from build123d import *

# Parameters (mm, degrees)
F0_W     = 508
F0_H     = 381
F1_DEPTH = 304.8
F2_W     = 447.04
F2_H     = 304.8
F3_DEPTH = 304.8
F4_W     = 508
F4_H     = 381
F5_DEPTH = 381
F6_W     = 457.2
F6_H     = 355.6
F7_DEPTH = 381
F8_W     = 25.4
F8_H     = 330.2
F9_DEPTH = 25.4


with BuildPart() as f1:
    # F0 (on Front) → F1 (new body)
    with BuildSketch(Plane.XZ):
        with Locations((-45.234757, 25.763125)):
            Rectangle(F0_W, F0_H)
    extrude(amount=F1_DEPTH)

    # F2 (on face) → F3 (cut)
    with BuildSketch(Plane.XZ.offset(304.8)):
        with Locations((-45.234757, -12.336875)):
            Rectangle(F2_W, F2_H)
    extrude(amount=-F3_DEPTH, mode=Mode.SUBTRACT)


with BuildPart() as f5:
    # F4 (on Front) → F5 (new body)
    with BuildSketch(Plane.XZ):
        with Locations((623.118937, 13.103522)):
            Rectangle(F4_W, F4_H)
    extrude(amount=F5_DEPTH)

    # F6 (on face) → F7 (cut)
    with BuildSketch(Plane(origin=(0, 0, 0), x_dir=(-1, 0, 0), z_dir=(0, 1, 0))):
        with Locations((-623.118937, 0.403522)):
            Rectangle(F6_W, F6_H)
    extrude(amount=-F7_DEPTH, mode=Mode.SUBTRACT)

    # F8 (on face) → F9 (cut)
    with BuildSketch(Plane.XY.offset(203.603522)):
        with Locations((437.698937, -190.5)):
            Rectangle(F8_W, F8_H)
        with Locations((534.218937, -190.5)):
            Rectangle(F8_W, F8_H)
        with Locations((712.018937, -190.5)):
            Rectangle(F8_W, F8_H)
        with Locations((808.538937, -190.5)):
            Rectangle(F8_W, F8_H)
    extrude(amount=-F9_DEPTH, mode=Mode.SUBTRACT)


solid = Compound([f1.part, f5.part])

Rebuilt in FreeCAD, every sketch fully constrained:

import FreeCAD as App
import Part
import Sketcher
from FreeCAD import Vector
Q = App.Units.Quantity


def add_polygon(sketch, points):
    """Adds a closed chain of lines whose ends are joined by coincident constraints."""
    first, n = sketch.GeometryCount, len(points)
    for a, b in zip(points, points[1:] + points[:1]):
        sketch.addGeometry(Part.LineSegment(App.Vector(*a, 0), App.Vector(*b, 0)), False)
    for i in range(n):
        sketch.addConstraint(Sketcher.Constraint("Coincident", first + i, 2, first + (i + 1) % n, 1))

doc = App.newDocument("Part")
body = doc.addObject("PartDesign::Body", "Body")

# Sketch on XZ plane
sketch1 = body.newObject("Sketcher::SketchObject", "Sketch")
sketch1.AttachmentSupport = (doc.getObject("XZ_Plane"), [""])
sketch1.MapMode = "FlatFace"
add_polygon(sketch1, [(-299, 216), (-299, -165), (209, -165), (209, 216)])  # lines 0-3
sketch1.addConstraint(Sketcher.Constraint("Vertical", 0))
sketch1.addConstraint(Sketcher.Constraint("Horizontal", 1))
sketch1.addConstraint(Sketcher.Constraint("Vertical", 2))
sketch1.addConstraint(Sketcher.Constraint("Horizontal", 3))
sketch1.addConstraint(Sketcher.Constraint("DistanceX", 1, 1, 1, 2, Q("20 in")))
sketch1.addConstraint(Sketcher.Constraint("DistanceY", 0, 2, 0, 1, Q("15 in")))
sketch1.addConstraint(Sketcher.Constraint("DistanceX", 0, 2, -1, 1, 299.234757))
sketch1.addConstraint(Sketcher.Constraint("DistanceY", 0, 2, -1, 1, 164.736875))
pad1 = body.newObject("PartDesign::Pad", "Pad")
pad1.Profile = sketch1
pad1.Length = Q("12 in")

# Sketch on XZ plane
sketch2 = body.newObject("Sketcher::SketchObject", "Sketch001")
sketch2.AttachmentSupport = (doc.getObject("XZ_Plane"), [""])
sketch2.MapMode = "FlatFace"
sketch2.AttachmentOffset = App.Placement(Vector(0, 0, 12 * 25.4), App.Rotation())
add_polygon(sketch2, [(-269, 140), (-269, -165), (178, -165), (178, 140)])  # lines 0-3
sketch2.addConstraint(Sketcher.Constraint("Vertical", 0))
sketch2.addConstraint(Sketcher.Constraint("Horizontal", 1))
sketch2.addConstraint(Sketcher.Constraint("Vertical", 2))
sketch2.addConstraint(Sketcher.Constraint("Horizontal", 3))
sketch2.addConstraint(Sketcher.Constraint("DistanceY", 0, 2, 0, 1, Q("12 in")))
sketch2.addConstraint(Sketcher.Constraint("DistanceX", 1, 1, 1, 2, Q("17.6 in")))
sketch2.addConstraint(Sketcher.Constraint("DistanceX", 0, 2, -1, 1, 268.754757))
sketch2.addConstraint(Sketcher.Constraint("DistanceY", 0, 2, -1, 1, 164.736875))
pocket1 = body.newObject("PartDesign::Pocket", "Pocket")
pocket1.Profile = sketch2
pocket1.Length = Q("12 in")
body2 = doc.addObject("PartDesign::Body", "Body001")

# Sketch on XZ plane
sketch3 = body2.newObject("Sketcher::SketchObject", "Sketch002")
sketch3.AttachmentSupport = (doc.getObject("XZ_Plane001"), [""])
sketch3.MapMode = "FlatFace"
add_polygon(sketch3, [(369, 204), (369, -177), (877, -177), (877, 204)])  # lines 0-3
sketch3.addConstraint(Sketcher.Constraint("Vertical", 0))
sketch3.addConstraint(Sketcher.Constraint("Horizontal", 1))
sketch3.addConstraint(Sketcher.Constraint("Vertical", 2))
sketch3.addConstraint(Sketcher.Constraint("Horizontal", 3))
sketch3.addConstraint(Sketcher.Constraint("DistanceX", 1, 1, 1, 2, Q("20 in")))
sketch3.addConstraint(Sketcher.Constraint("DistanceY", 0, 2, 0, 1, Q("15 in")))
sketch3.addConstraint(Sketcher.Constraint("DistanceY", 0, 2, -1, 1, 177.396478))
sketch3.addConstraint(Sketcher.Constraint("DistanceX", -1, 1, 0, 2, 369.118937))
pad2 = body2.newObject("PartDesign::Pad", "Pad001")
pad2.Profile = sketch3
pad2.Length = Q("15 in")

# Sketch on XZ plane
sketch4 = body2.newObject("Sketcher::SketchObject", "Sketch003")
sketch4.AttachmentSupport = (doc.getObject("XZ_Plane001"), [""])
sketch4.MapMode = "FlatFace"
add_polygon(sketch4, [(852, 178), (852, -177), (395, -177), (395, 178)])  # lines 0-3
sketch4.addConstraint(Sketcher.Constraint("Vertical", 0))
sketch4.addConstraint(Sketcher.Constraint("Horizontal", 1))
sketch4.addConstraint(Sketcher.Constraint("Vertical", 2))
sketch4.addConstraint(Sketcher.Constraint("Horizontal", 3))
sketch4.addConstraint(Sketcher.Constraint("DistanceX", 1, 2, 1, 1, Q("18 in")))
sketch4.addConstraint(Sketcher.Constraint("DistanceY", 0, 2, 0, 1, Q("14 in")))
sketch4.addConstraint(Sketcher.Constraint("DistanceY", 0, 2, -1, 1, 177.396478))
sketch4.addConstraint(Sketcher.Constraint("DistanceX", -1, 1, 0, 2, 851.718937))
pocket2 = body2.newObject("PartDesign::Pocket", "Pocket001")
pocket2.Profile = sketch4
pocket2.Length = Q("15 in")
pocket2.Reversed = True

# Sketch on XY plane
sketch5 = body2.newObject("Sketcher::SketchObject", "Sketch004")
sketch5.AttachmentSupport = (doc.getObject("XY_Plane001"), [""])
sketch5.MapMode = "FlatFace"
sketch5.AttachmentOffset = App.Placement(Vector(0, 0, 203.603522), App.Rotation())
add_polygon(sketch5, [(425, -25), (425, -356), (450, -356), (450, -25)])  # lines 0-3
add_polygon(sketch5, [(522, -25), (522, -356), (547, -356), (547, -25)])  # lines 4-7
add_polygon(sketch5, [(699, -25), (699, -356), (725, -356), (725, -25)])  # lines 8-11
add_polygon(sketch5, [(796, -25), (796, -356), (821, -356), (821, -25)])  # lines 12-15
sketch5.addConstraint(Sketcher.Constraint("Vertical", 0))
sketch5.addConstraint(Sketcher.Constraint("Horizontal", 1))
sketch5.addConstraint(Sketcher.Constraint("Vertical", 2))
sketch5.addConstraint(Sketcher.Constraint("Horizontal", 3))
sketch5.addConstraint(Sketcher.Constraint("Vertical", 4))
sketch5.addConstraint(Sketcher.Constraint("Horizontal", 5))
sketch5.addConstraint(Sketcher.Constraint("Vertical", 6))
sketch5.addConstraint(Sketcher.Constraint("Horizontal", 7))
sketch5.addConstraint(Sketcher.Constraint("Vertical", 8))
sketch5.addConstraint(Sketcher.Constraint("Horizontal", 9))
sketch5.addConstraint(Sketcher.Constraint("Vertical", 10))
sketch5.addConstraint(Sketcher.Constraint("Horizontal", 11))
sketch5.addConstraint(Sketcher.Constraint("Vertical", 12))
sketch5.addConstraint(Sketcher.Constraint("Horizontal", 13))
sketch5.addConstraint(Sketcher.Constraint("Vertical", 14))
sketch5.addConstraint(Sketcher.Constraint("Horizontal", 15))
sketch5.addConstraint(Sketcher.Constraint("Horizontal", 1, 2, 4, 2))
sketch5.addConstraint(Sketcher.Constraint("Horizontal", 3, 2, 6, 2))
sketch5.addConstraint(Sketcher.Constraint("Horizontal", 5, 2, 8, 2))
sketch5.addConstraint(Sketcher.Constraint("Horizontal", 7, 2, 10, 2))
sketch5.addConstraint(Sketcher.Constraint("Horizontal", 9, 2, 12, 2))
sketch5.addConstraint(Sketcher.Constraint("Horizontal", 11, 2, 14, 2))
sketch5.addConstraint(Sketcher.Constraint("Equal", 3, 5))
sketch5.addConstraint(Sketcher.Constraint("Equal", 7, 9))
sketch5.addConstraint(Sketcher.Constraint("Equal", 11, 13))
sketch5.addConstraint(Sketcher.Constraint("DistanceX", 1, 1, 1, 2, Q("1 in")))
sketch5.addConstraint(Sketcher.Constraint("DistanceY", 0, 2, 0, 1, Q("13 in")))
sketch5.addConstraint(Sketcher.Constraint("DistanceY", 0, 2, -1, 1, Q("14 in")))
sketch5.addConstraint(Sketcher.Constraint("DistanceX", 5, 2, 8, 2, Q("6 in")))
sketch5.addConstraint(Sketcher.Constraint("DistanceX", 1, 2, 4, 2, Q("2.8 in")))
sketch5.addConstraint(Sketcher.Constraint("DistanceX", 9, 2, 12, 2, Q("2.8 in")))
sketch5.addConstraint(Sketcher.Constraint("DistanceX", -1, 1, 0, 2, 424.998937))
pocket3 = body2.newObject("PartDesign::Pocket", "Pocket002")
pocket3.Profile = sketch5
pocket3.Length = Q("1 in")

doc.recompute()
